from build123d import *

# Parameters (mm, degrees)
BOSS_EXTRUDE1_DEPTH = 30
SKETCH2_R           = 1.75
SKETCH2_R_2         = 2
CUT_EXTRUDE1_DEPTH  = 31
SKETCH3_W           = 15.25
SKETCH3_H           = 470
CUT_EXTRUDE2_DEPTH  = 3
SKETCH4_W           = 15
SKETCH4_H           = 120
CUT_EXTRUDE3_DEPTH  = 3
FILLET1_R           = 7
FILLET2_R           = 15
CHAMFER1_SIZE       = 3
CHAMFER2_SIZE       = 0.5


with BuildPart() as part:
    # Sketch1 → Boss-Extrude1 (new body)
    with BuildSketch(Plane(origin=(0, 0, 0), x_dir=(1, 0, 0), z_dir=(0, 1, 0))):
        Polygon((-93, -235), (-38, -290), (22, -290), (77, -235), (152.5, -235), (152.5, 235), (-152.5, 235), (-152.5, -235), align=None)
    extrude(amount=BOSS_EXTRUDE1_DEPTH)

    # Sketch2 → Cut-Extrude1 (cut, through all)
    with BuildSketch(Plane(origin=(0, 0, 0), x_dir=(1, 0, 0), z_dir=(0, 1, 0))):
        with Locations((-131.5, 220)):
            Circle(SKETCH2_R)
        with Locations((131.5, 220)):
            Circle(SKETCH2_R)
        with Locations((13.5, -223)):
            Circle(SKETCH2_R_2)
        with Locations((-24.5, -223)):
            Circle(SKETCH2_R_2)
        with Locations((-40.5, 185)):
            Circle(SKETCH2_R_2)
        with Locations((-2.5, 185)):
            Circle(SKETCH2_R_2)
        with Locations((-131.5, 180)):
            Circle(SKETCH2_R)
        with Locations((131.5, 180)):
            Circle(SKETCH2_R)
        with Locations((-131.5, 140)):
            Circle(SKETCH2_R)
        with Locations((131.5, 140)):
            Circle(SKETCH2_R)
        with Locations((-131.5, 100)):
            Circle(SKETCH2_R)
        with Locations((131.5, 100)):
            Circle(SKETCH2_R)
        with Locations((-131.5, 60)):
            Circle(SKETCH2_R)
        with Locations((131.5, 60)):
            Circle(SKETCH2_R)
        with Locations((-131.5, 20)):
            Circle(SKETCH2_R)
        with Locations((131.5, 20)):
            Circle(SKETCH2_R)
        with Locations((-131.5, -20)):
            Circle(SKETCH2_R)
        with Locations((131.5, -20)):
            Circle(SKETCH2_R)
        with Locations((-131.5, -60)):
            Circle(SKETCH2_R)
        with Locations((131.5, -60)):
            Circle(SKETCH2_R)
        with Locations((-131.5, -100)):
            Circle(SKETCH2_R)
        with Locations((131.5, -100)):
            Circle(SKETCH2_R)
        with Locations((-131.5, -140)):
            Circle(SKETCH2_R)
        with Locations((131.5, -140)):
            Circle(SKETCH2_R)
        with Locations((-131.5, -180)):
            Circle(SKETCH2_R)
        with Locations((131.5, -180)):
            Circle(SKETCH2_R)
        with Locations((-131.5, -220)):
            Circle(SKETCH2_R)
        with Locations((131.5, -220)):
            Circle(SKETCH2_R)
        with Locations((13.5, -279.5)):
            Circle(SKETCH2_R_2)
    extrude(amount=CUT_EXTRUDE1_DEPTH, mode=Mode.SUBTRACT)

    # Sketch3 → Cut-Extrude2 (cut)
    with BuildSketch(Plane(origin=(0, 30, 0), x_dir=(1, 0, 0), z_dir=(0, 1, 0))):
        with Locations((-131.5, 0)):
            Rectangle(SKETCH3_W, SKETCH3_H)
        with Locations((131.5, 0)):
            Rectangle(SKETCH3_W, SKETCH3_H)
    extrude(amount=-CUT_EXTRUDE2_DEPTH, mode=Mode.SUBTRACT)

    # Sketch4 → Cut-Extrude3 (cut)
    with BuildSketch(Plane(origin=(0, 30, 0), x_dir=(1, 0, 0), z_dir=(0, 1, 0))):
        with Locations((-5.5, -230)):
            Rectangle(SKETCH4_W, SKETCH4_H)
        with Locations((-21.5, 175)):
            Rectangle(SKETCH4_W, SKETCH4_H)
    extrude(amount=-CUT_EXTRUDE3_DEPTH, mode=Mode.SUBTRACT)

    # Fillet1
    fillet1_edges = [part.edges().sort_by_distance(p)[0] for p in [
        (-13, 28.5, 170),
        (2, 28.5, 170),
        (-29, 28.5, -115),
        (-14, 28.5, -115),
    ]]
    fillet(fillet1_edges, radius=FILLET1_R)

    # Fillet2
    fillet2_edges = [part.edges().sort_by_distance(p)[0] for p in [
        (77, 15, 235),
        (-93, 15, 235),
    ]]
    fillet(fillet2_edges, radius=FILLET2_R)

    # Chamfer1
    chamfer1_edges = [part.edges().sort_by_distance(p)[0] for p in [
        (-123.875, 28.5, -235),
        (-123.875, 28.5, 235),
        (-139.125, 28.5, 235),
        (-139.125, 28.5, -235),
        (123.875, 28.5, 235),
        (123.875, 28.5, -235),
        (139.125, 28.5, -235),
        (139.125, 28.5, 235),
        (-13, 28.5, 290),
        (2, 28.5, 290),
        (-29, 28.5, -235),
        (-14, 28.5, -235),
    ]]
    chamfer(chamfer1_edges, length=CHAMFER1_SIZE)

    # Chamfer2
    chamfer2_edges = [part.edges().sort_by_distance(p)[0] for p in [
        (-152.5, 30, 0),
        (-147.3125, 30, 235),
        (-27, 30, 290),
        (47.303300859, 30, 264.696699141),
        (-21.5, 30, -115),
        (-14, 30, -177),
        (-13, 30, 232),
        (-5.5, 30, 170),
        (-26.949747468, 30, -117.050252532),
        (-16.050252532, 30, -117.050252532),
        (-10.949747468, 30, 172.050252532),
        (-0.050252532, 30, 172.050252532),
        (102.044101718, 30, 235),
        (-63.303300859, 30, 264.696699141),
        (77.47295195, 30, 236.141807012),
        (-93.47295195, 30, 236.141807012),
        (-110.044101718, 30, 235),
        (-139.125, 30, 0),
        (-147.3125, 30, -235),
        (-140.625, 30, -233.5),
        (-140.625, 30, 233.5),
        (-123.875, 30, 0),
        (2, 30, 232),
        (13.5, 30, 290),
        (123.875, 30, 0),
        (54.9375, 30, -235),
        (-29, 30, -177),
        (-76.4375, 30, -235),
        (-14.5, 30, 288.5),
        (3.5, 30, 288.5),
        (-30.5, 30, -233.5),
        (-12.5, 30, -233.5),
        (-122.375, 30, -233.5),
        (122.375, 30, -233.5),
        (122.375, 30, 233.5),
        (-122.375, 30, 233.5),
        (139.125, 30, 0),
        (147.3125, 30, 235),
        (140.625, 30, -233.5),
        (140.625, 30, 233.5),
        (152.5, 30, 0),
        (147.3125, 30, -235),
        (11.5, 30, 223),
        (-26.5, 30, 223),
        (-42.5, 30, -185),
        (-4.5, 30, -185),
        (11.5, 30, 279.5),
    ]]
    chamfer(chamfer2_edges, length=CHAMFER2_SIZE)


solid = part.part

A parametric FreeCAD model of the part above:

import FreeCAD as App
import Part
import Sketcher


def edges_at(feature, points):
    """Names of the edges that pass closest to the given points."""
    edges = feature.Shape.Edges
    near = lambda p: min(range(len(edges)), key=lambda i: edges[i].distToShape(Part.Vertex(*p))[0])
    return sorted({f"Edge{near(p) + 1}" for p in points})


def add_polygon(sketch, points):
    """Adds a closed chain of lines whose ends are joined by coincident constraints."""
    first, n = sketch.GeometryCount, len(points)
    for a, b in zip(points, points[1:] + points[:1]):
        sketch.addGeometry(Part.LineSegment(App.Vector(*a, 0), App.Vector(*b, 0)), False)
    for i in range(n):
        sketch.addConstraint(Sketcher.Constraint("Coincident", first + i, 2, first + (i + 1) % n, 1))

doc = App.newDocument("Part")
params = doc.addObject("Spreadsheet::Sheet", "Params")
for row, (alias, value) in enumerate([
    ("sketch1_width", "60 mm"),
    ("sketch1_width2", "305 mm"),
    ("sketch1_height", "470 mm"),
    ("sketch1_width3", "75.5 mm"),
    ("sketch1_width4", "59.5 mm"),
    ("pad1_length", "30 mm"),
    ("sketch2_diameter", "4 mm"),
    ("sketch2_diameter2", "3.5 mm"),
    ("sketch3_height", "470 mm"),
    ("sketch3_width", "15.25 mm"),
    ("pocket2_length", "3 mm"),
    ("sketch4_width", "15 mm"),
    ("sketch4_height", "120 mm"),
    ("pocket3_length", "3 mm"),
    ("fillet_radius", "7 mm"),
    ("fillet2_radius", "15 mm"),
    ("chamfer_size", "3 mm"),
    ("chamfer2_size", "0.5 mm"),
], start=1):
    params.set(f"A{row}", alias)
    params.set(f"B{row}", "=" + value)
    params.setAlias(f"B{row}", alias)

body = doc.addObject("PartDesign::Body", "Body")

sketch1 = body.newObject("Sketcher::SketchObject", "Sketch")
sketch1.AttachmentSupport = (doc.getObject("XZ_Plane"), [""])
sketch1.MapMode = "FlatFace"
add_polygon(sketch1, [(-93, 235), (-38, 290), (22, 290), (77, 235), (152.5, 235), (152.5, -235), (-152.5, -235), (-152.5, 235)])
sketch1.addConstraint(Sketcher.Constraint("Horizontal", 1))
sketch1.addConstraint(Sketcher.Constraint("Horizontal", 3))
sketch1.addConstraint(Sketcher.Constraint("Vertical", 4))
sketch1.addConstraint(Sketcher.Constraint("Horizontal", 5))
sketch1.addConstraint(Sketcher.Constraint("Vertical", 6))
sketch1.addConstraint(Sketcher.Constraint("Horizontal", 7))
sketch1.addConstraint(Sketcher.Constraint("Symmetric", 3, 2, 5, 2, -1, 1))
sketch1.addConstraint(Sketcher.Constraint("Perpendicular", 0, 2))
sketch1.addConstraint(Sketcher.Constraint("Horizontal", 3, 2, 6, 2))
sketch1.addConstraint(Sketcher.Constraint("Equal", 0, 2))
sketch1.addConstraint(Sketcher.Constraint("DistanceX", 1, 1, 1, 2, 60.0))
sketch1.addConstraint(Sketcher.Constraint("DistanceX", 5, 2, 5, 1, 305.0))
sketch1.addConstraint(Sketcher.Constraint("DistanceY", 4, 2, 4, 1, 470.0))
sketch1.addConstraint(Sketcher.Constraint("DistanceX", 3, 1, 3, 2, 75.5))
sketch1.addConstraint(Sketcher.Constraint("DistanceX", 7, 1, 7, 2, 59.5))
sketch1.setExpression("Constraints[18]", "Params.sketch1_width")
sketch1.setExpression("Constraints[19]", "Params.sketch1_width2")
sketch1.setExpression("Constraints[20]", "Params.sketch1_height")
sketch1.setExpression("Constraints[21]", "Params.sketch1_width3")
sketch1.setExpression("Constraints[22]", "Params.sketch1_width4")
pad1 = body.newObject("PartDesign::Pad", "Pad")
pad1.Profile = sketch1
pad1.setExpression("Length", "Params.pad1_length")
pad1.Reversed = True

sketch2 = body.newObject("Sketcher::SketchObject", "Sketch001")
sketch2.AttachmentSupport = (doc.getObject("XZ_Plane"), [""])
sketch2.MapMode = "FlatFace"
sketch2.addGeometry(Part.Circle(App.Vector(-131.5, -220, 0), App.Vector(0, 0, 1), 1.75), False)
sketch2.addGeometry(Part.Circle(App.Vector(131.5, -220, 0), App.Vector(0, 0, 1), 1.75), False)
sketch2.addGeometry(Part.Circle(App.Vector(13.5, 223, 0), App.Vector(0, 0, 1), 2), False)
sketch2.addGeometry(Part.Circle(App.Vector(-24.5, 223, 0), App.Vector(0, 0, 1), 2), False)
sketch2.addGeometry(Part.Circle(App.Vector(-40.5, -185, 0), App.Vector(0, 0, 1), 2), False)
sketch2.addGeometry(Part.Circle(App.Vector(-2.5, -185, 0), App.Vector(0, 0, 1), 2), False)
sketch2.addGeometry(Part.Circle(App.Vector(-131.5, -180, 0), App.Vector(0, 0, 1), 1.75), False)
sketch2.addGeometry(Part.Circle(App.Vector(131.5, -180, 0), App.Vector(0, 0, 1), 1.75), False)
sketch2.addGeometry(Part.Circle(App.Vector(-131.5, -140, 0), App.Vector(0, 0, 1), 1.75), False)
sketch2.addGeometry(Part.Circle(App.Vector(131.5, -140, 0), App.Vector(0, 0, 1), 1.75), False)
sketch2.addGeometry(Part.Circle(App.Vector(-131.5, -100, 0), App.Vector(0, 0, 1), 1.75), False)
sketch2.addGeometry(Part.Circle(App.Vector(131.5, -100, 0), App.Vector(0, 0, 1), 1.75), False)
sketch2.addGeometry(Part.Circle(App.Vector(-131.5, -60, 0), App.Vector(0, 0, 1), 1.75), False)
sketch2.addGeometry(Part.Circle(App.Vector(131.5, -60, 0), App.Vector(0, 0, 1), 1.75), False)
sketch2.addGeometry(Part.Circle(App.Vector(-131.5, -20, 0), App.Vector(0, 0, 1), 1.75), False)
sketch2.addGeometry(Part.Circle(App.Vector(131.5, -20, 0), App.Vector(0, 0, 1), 1.75), False)
sketch2.addGeometry(Part.Circle(App.Vector(-131.5, 20, 0), App.Vector(0, 0, 1), 1.75), False)
sketch2.addGeometry(Part.Circle(App.Vector(131.5, 20, 0), App.Vector(0, 0, 1), 1.75), False)
sketch2.addGeometry(Part.Circle(App.Vector(-131.5, 60, 0), App.Vector(0, 0, 1), 1.75), False)
sketch2.addGeometry(Part.Circle(App.Vector(131.5, 60, 0), App.Vector(0, 0, 1), 1.75), False)
sketch2.addGeometry(Part.Circle(App.Vector(-131.5, 100, 0), App.Vector(0, 0, 1), 1.75), False)
sketch2.addGeometry(Part.Circle(App.Vector(131.5, 100, 0), App.Vector(0, 0, 1), 1.75), False)
sketch2.addGeometry(Part.Circle(App.Vector(-131.5, 140, 0), App.Vector(0, 0, 1), 1.75), False)
sketch2.addGeometry(Part.Circle(App.Vector(131.5, 140, 0), App.Vector(0, 0, 1), 1.75), False)
sketch2.addGeometry(Part.Circle(App.Vector(-131.5, 180, 0), App.Vector(0, 0, 1), 1.75), False)
sketch2.addGeometry(Part.Circle(App.Vector(131.5, 180, 0), App.Vector(0, 0, 1), 1.75), False)
sketch2.addGeometry(Part.Circle(App.Vector(-131.5, 220, 0), App.Vector(0, 0, 1), 1.75), False)
sketch2.addGeometry(Part.Circle(App.Vector(131.5, 220, 0), App.Vector(0, 0, 1), 1.75), False)
sketch2.addGeometry(Part.Circle(App.Vector(13.5, 279.5, 0), App.Vector(0, 0, 1), 2), False)
sketch2.addConstraint(Sketcher.Constraint("Equal", 0, 1))
sketch2.addConstraint(Sketcher.Constraint("Equal", 2, 3))
sketch2.addConstraint(Sketcher.Constraint("Equal", 3, 4))
sketch2.addConstraint(Sketcher.Constraint("Equal", 4, 5))
sketch2.addConstraint(Sketcher.Constraint("Equal", 1, 6))
sketch2.addConstraint(Sketcher.Constraint("Equal", 6, 7))
sketch2.addConstraint(Sketcher.Constraint("Equal", 7, 8))
sketch2.addConstraint(Sketcher.Constraint("Equal", 8, 9))
sketch2.addConstraint(Sketcher.Constraint("Equal", 9, 10))
sketch2.addConstraint(Sketcher.Constraint("Equal", 10, 11))
sketch2.addConstraint(Sketcher.Constraint("Equal", 11, 12))
sketch2.addConstraint(Sketcher.Constraint("Equal", 12, 13))
sketch2.addConstraint(Sketcher.Constraint("Equal", 13, 14))
sketch2.addConstraint(Sketcher.Constraint("Equal", 14, 15))
sketch2.addConstraint(Sketcher.Constraint("Equal", 15, 16))
sketch2.addConstraint(Sketcher.Constraint("Equal", 16, 17))
sketch2.addConstraint(Sketcher.Constraint("Equal", 17, 18))
sketch2.addConstraint(Sketcher.Constraint("Equal", 18, 19))
sketch2.addConstraint(Sketcher.Constraint("Equal", 19, 20))
sketch2.addConstraint(Sketcher.Constraint("Equal", 20, 21))
sketch2.addConstraint(Sketcher.Constraint("Equal", 21, 22))
sketch2.addConstraint(Sketcher.Constraint("Equal", 22, 23))
sketch2.addConstraint(Sketcher.Constraint("Equal", 23, 24))
sketch2.addConstraint(Sketcher.Constraint("Equal", 24, 25))
sketch2.addConstraint(Sketcher.Constraint("Equal", 25, 26))
sketch2.addConstraint(Sketcher.Constraint("Equal", 26, 27))
sketch2.addConstraint(Sketcher.Constraint("Equal", 5, 28))
sketch2.addConstraint(Sketcher.Constraint("Symmetric", 15, 3, 16, 3, -1, 1))
sketch2.addConstraint(Sketcher.Constraint("Symmetric", 14, 3, 17, 3, -1, 1))
sketch2.addConstraint(Sketcher.Constraint("Symmetric", 13, 3, 18, 3, -1, 1))
sketch2.addConstraint(Sketcher.Constraint("Symmetric", 12, 3, 19, 3, -1, 1))
sketch2.addConstraint(Sketcher.Constraint("Symmetric", 11, 3, 20, 3, -1, 1))
sketch2.addConstraint(Sketcher.Constraint("Symmetric", 10, 3, 21, 3, -1, 1))
sketch2.addConstraint(Sketcher.Constraint("Symmetric", 9, 3, 22, 3, -1, 1))
sketch2.addConstraint(Sketcher.Constraint("Symmetric", 8, 3, 23, 3, -1, 1))
sketch2.addConstraint(Sketcher.Constraint("Symmetric", 7, 3, 24, 3, -1, 1))
sketch2.addConstraint(Sketcher.Constraint("Symmetric", 6, 3, 25, 3, -1, 1))
sketch2.addConstraint(Sketcher.Constraint("Symmetric", 1, 3, 26, 3, -1, 1))
sketch2.addConstraint(Sketcher.Constraint("Symmetric", 0, 3, 27, 3, -1, 1))
sketch2.addConstraint(Sketcher.Constraint("Symmetric", 0, 3, 1, 3, -2))
sketch2.addConstraint(Sketcher.Constraint("Symmetric", 6, 3, 7, 3, -2))
sketch2.addConstraint(Sketcher.Constraint("Symmetric", 8, 3, 9, 3, -2))
sketch2.addConstraint(Sketcher.Constraint("Symmetric", 10, 3, 11, 3, -2))
sketch2.addConstraint(Sketcher.Constraint("Symmetric", 12, 3, 13, 3, -2))
sketch2.addConstraint(Sketcher.Constraint("Symmetric", 14, 3, 15, 3, -2))
sketch2.addConstraint(Sketcher.Constraint("Horizontal", 2, 3, 3, 3))
sketch2.addConstraint(Sketcher.Constraint("Horizontal", 4, 3, 5, 3))
sketch2.addConstraint(Sketcher.Constraint("Vertical", 0, 3, 6, 3))
sketch2.addConstraint(Sketcher.Constraint("Vertical", 6, 3, 8, 3))
sketch2.addConstraint(Sketcher.Constraint("Vertical", 8, 3, 10, 3))
sketch2.addConstraint(Sketcher.Constraint("Vertical", 10, 3, 12, 3))
sketch2.addConstraint(Sketcher.Constraint("Vertical", 12, 3, 14, 3))
sketch2.addConstraint(Sketcher.Constraint("Vertical", 2, 3, 28, 3))
sketch2.addConstraint(Sketcher.Constraint("Diameter", 2, 4.0))
sketch2.addConstraint(Sketcher.Constraint("Diameter", 0, 3.5))
sketch2.addConstraint(Sketcher.Constraint("DistanceY", 0, 3, -1, 1, 220.0))
sketch2.addConstraint(Sketcher.Constraint("DistanceY", -1, 1, 2, 3, 223.0))
sketch2.addConstraint(Sketcher.Constraint("DistanceY", 4, 3, -1, 1, 185.0))
sketch2.addConstraint(Sketcher.Constraint("DistanceY", 6, 3, -1, 1, 180.0))
sketch2.addConstraint(Sketcher.Constraint("DistanceY", 8, 3, -1, 1, 140.0))
sketch2.addConstraint(Sketcher.Constraint("DistanceY", 10, 3, -1, 1, 100.0))
sketch2.addConstraint(Sketcher.Constraint("DistanceY", 12, 3, -1, 1, 60.0))
sketch2.addConstraint(Sketcher.Constraint("DistanceY", 14, 3, -1, 1, 20.0))
sketch2.addConstraint(Sketcher.Constraint("DistanceX", 0, 3, 1, 3, 263.0))
sketch2.addConstraint(Sketcher.Constraint("DistanceX", 2, 3, 1, 3, 118.0))
sketch2.addConstraint(Sketcher.Constraint("DistanceX", 3, 3, 2, 3, 38.0))
sketch2.addConstraint(Sketcher.Constraint("DistanceX", 0, 3, 4, 3, 91.0))
sketch2.addConstraint(Sketcher.Constraint("DistanceX", 4, 3, 5, 3, 38.0))
sketch2.addConstraint(Sketcher.Constraint("DistanceY", -1, 1, 28, 3, 279.5))
sketch2.setExpression("Constraints[53]", "Params.sketch2_diameter")
sketch2.setExpression("Constraints[54]", "Params.sketch2_diameter2")
pocket1 = body.newObject("PartDesign::Pocket", "Pocket")
pocket1.Profile = sketch2
pocket1.Type = "ThroughAll"

sketch3 = body.newObject("Sketcher::SketchObject", "Sketch002")
sketch3.AttachmentSupport = (doc.getObject("XZ_Plane"), [""])
sketch3.MapMode = "FlatFace"
sketch3.AttachmentOffset = App.Placement(App.Vector(0, 0, -30), App.Rotation())
add_polygon(sketch3, [(-139.125, -235), (-139.125, 235), (-123.875, 235), (-123.875, -235)])
add_polygon(sketch3, [(123.875, -235), (123.875, 235), (139.125, 235), (139.125, -235)])
sketch3.addConstraint(Sketcher.Constraint("Vertical", 0))
sketch3.addConstraint(Sketcher.Constraint("Horizontal", 1))
sketch3.addConstraint(Sketcher.Constraint("Vertical", 2))
sketch3.addConstraint(Sketcher.Constraint("Horizontal", 3))
sketch3.addConstraint(Sketcher.Constraint("Vertical", 4))
sketch3.addConstraint(Sketcher.Constraint("Horizontal", 5))
sketch3.addConstraint(Sketcher.Constraint("Vertical", 6))
sketch3.addConstraint(Sketcher.Constraint("Horizontal", 7))
sketch3.addConstraint(Sketcher.Constraint("Symmetric", 2, 2, 4, 2, -1, 1))
sketch3.addConstraint(Sketcher.Constraint("Symmetric", 0, 2, 6, 2, -1, 1))
sketch3.addConstraint(Sketcher.Constraint("Horizontal", 1, 2, 4, 2))
sketch3.addConstraint(Sketcher.Constraint("DistanceY", 0, 1, 0, 2, 470.0))
sketch3.addConstraint(Sketcher.Constraint("DistanceX", 0, 2, 4, 2, 263.0))
sketch3.addConstraint(Sketcher.Constraint("DistanceX", 1, 1, 1, 2, 15.25))
sketch3.setExpression("Constraints[19]", "Params.sketch3_height")
sketch3.setExpression("Constraints[21]", "Params.sketch3_width")
pocket2 = body.newObject("PartDesign::Pocket", "Pocket001")
pocket2.Profile = sketch3
pocket2.setExpression("Length", "Params.pocket2_length")
pocket2.Reversed = True

sketch4 = body.newObject("Sketcher::SketchObject", "Sketch003")
sketch4.AttachmentSupport = (doc.getObject("XZ_Plane"), [""])
sketch4.MapMode = "FlatFace"
sketch4.AttachmentOffset = App.Placement(App.Vector(0, 0, -30), App.Rotation())
add_polygon(sketch4, [(-13, 170), (-13, 290), (2, 290), (2, 170)])
add_polygon(sketch4, [(-29, -235), (-29, -115), (-14, -115), (-14, -235)])
sketch4.addConstraint(Sketcher.Constraint("Vertical", 0))
sketch4.addConstraint(Sketcher.Constraint("Horizontal", 1))
sketch4.addConstraint(Sketcher.Constraint("Vertical", 2))
sketch4.addConstraint(Sketcher.Constraint("Horizontal", 3))
sketch4.addConstraint(Sketcher.Constraint("Vertical", 4))
sketch4.addConstraint(Sketcher.Constraint("Horizontal", 5))
sketch4.addConstraint(Sketcher.Constraint("Vertical", 6))
sketch4.addConstraint(Sketcher.Constraint("Horizontal", 7))
sketch4.addConstraint(Sketcher.Constraint("Equal", 3, 5))
sketch4.addConstraint(Sketcher.Constraint("Equal", 2, 4))
sketch4.addConstraint(Sketcher.Constraint("DistanceX", 1, 1, 1, 2, 15.0))
sketch4.addConstraint(Sketcher.Constraint("DistanceY", 0, 1, 0, 2, 120.0))
sketch4.addConstraint(Sketcher.Constraint("DistanceX", 0, 2, -1, 1, 13.0))
sketch4.addConstraint(Sketcher.Constraint("DistanceY", -1, 1, 0, 2, 290.0))
sketch4.addConstraint(Sketcher.Constraint("DistanceX", 4, 2, -1, 1, 29.0))
sketch4.addConstraint(Sketcher.Constraint("DistanceY", 4, 2, -1, 1, 115.0))
sketch4.setExpression("Constraints[18]", "Params.sketch4_width")
sketch4.setExpression("Constraints[19]", "Params.sketch4_height")
pocket3 = body.newObject("PartDesign::Pocket", "Pocket002")
pocket3.Profile = sketch4
pocket3.setExpression("Length", "Params.pocket3_length")
pocket3.Reversed = True
doc.recompute()

fillet = body.newObject("PartDesign::Fillet", "Fillet")
fillet.Base = (pocket3, edges_at(pocket3, [
    (-13, 28.5, 170),
    (2, 28.5, 170),
    (-29, 28.5, -115),
    (-14, 28.5, -115),
]))
fillet.setExpression("Radius", "Params.fillet_radius")
doc.recompute()

fillet2 = body.newObject("PartDesign::Fillet", "Fillet001")
fillet2.Base = (fillet, edges_at(fillet, [(77, 15, 235), (-93, 15, 235)]))
fillet2.setExpression("Radius", "Params.fillet2_radius")
doc.recompute()

chamfer = body.newObject("PartDesign::Chamfer", "Chamfer")
chamfer.Base = (fillet2, edges_at(fillet2, [
    (-123.875, 28.5, -235),
    (-123.875, 28.5, 235),
    (-139.125, 28.5, 235),
    (-139.125, 28.5, -235),
    (123.875, 28.5, 235),
    (123.875, 28.5, -235),
    (139.125, 28.5, -235),
    (139.125, 28.5, 235),
    (-13, 28.5, 290),
    (2, 28.5, 290),
    (-29, 28.5, -235),
    (-14, 28.5, -235),
]))
chamfer.setExpression("Size", "Params.chamfer_size")
doc.recompute()

chamfer2 = body.newObject("PartDesign::Chamfer", "Chamfer001")
chamfer2.Base = (chamfer, edges_at(chamfer, [
    (-152.5, 30, 0),
    (-147.312, 30, 235),
    (-27, 30, 290),
    (47.303, 30, 264.697),
    (-21.5, 30, -115),
    (-14, 30, -177),
    (-13, 30, 232),
    (-5.5, 30, 170),
    (-26.95, 30, -117.05),
    (-16.05, 30, -117.05),
    (-10.95, 30, 172.05),
    (-0.05, 30, 172.05),
    (102.044, 30, 235),
    (-63.303, 30, 264.697),
    (77.473, 30, 236.142),
    (-93.473, 30, 236.142),
    (-110.044, 30, 235),
    (-139.125, 30, 0),
    (-147.312, 30, -235),
    (-140.625, 30, -233.5),
    (-140.625, 30, 233.5),
    (-123.875, 30, 0),
    (2, 30, 232),
    (13.5, 30, 290),
    (123.875, 30, 0),
    (54.938, 30, -235),
    (-29, 30, -177),
    (-76.438, 30, -235),
    (-14.5, 30, 288.5),
    (3.5, 30, 288.5),
    (-30.5, 30, -233.5),
    (-12.5, 30, -233.5),
    (-122.375, 30, -233.5),
    (122.375, 30, -233.5),
    (122.375, 30, 233.5),
    (-122.375, 30, 233.5),
    (139.125, 30, 0),
    (147.312, 30, 235),
    (140.625, 30, -233.5),
    (140.625, 30, 233.5),
    (152.5, 30, 0),
    (147.312, 30, -235),
    (11.5, 30, 223),
    (-26.5, 30, 223),
    (-42.5, 30, -185),
    (-4.5, 30, -185),
    (11.5, 30, 279.5),
]))
chamfer2.setExpression("Size", "Params.chamfer2_size")

doc.recompute()
